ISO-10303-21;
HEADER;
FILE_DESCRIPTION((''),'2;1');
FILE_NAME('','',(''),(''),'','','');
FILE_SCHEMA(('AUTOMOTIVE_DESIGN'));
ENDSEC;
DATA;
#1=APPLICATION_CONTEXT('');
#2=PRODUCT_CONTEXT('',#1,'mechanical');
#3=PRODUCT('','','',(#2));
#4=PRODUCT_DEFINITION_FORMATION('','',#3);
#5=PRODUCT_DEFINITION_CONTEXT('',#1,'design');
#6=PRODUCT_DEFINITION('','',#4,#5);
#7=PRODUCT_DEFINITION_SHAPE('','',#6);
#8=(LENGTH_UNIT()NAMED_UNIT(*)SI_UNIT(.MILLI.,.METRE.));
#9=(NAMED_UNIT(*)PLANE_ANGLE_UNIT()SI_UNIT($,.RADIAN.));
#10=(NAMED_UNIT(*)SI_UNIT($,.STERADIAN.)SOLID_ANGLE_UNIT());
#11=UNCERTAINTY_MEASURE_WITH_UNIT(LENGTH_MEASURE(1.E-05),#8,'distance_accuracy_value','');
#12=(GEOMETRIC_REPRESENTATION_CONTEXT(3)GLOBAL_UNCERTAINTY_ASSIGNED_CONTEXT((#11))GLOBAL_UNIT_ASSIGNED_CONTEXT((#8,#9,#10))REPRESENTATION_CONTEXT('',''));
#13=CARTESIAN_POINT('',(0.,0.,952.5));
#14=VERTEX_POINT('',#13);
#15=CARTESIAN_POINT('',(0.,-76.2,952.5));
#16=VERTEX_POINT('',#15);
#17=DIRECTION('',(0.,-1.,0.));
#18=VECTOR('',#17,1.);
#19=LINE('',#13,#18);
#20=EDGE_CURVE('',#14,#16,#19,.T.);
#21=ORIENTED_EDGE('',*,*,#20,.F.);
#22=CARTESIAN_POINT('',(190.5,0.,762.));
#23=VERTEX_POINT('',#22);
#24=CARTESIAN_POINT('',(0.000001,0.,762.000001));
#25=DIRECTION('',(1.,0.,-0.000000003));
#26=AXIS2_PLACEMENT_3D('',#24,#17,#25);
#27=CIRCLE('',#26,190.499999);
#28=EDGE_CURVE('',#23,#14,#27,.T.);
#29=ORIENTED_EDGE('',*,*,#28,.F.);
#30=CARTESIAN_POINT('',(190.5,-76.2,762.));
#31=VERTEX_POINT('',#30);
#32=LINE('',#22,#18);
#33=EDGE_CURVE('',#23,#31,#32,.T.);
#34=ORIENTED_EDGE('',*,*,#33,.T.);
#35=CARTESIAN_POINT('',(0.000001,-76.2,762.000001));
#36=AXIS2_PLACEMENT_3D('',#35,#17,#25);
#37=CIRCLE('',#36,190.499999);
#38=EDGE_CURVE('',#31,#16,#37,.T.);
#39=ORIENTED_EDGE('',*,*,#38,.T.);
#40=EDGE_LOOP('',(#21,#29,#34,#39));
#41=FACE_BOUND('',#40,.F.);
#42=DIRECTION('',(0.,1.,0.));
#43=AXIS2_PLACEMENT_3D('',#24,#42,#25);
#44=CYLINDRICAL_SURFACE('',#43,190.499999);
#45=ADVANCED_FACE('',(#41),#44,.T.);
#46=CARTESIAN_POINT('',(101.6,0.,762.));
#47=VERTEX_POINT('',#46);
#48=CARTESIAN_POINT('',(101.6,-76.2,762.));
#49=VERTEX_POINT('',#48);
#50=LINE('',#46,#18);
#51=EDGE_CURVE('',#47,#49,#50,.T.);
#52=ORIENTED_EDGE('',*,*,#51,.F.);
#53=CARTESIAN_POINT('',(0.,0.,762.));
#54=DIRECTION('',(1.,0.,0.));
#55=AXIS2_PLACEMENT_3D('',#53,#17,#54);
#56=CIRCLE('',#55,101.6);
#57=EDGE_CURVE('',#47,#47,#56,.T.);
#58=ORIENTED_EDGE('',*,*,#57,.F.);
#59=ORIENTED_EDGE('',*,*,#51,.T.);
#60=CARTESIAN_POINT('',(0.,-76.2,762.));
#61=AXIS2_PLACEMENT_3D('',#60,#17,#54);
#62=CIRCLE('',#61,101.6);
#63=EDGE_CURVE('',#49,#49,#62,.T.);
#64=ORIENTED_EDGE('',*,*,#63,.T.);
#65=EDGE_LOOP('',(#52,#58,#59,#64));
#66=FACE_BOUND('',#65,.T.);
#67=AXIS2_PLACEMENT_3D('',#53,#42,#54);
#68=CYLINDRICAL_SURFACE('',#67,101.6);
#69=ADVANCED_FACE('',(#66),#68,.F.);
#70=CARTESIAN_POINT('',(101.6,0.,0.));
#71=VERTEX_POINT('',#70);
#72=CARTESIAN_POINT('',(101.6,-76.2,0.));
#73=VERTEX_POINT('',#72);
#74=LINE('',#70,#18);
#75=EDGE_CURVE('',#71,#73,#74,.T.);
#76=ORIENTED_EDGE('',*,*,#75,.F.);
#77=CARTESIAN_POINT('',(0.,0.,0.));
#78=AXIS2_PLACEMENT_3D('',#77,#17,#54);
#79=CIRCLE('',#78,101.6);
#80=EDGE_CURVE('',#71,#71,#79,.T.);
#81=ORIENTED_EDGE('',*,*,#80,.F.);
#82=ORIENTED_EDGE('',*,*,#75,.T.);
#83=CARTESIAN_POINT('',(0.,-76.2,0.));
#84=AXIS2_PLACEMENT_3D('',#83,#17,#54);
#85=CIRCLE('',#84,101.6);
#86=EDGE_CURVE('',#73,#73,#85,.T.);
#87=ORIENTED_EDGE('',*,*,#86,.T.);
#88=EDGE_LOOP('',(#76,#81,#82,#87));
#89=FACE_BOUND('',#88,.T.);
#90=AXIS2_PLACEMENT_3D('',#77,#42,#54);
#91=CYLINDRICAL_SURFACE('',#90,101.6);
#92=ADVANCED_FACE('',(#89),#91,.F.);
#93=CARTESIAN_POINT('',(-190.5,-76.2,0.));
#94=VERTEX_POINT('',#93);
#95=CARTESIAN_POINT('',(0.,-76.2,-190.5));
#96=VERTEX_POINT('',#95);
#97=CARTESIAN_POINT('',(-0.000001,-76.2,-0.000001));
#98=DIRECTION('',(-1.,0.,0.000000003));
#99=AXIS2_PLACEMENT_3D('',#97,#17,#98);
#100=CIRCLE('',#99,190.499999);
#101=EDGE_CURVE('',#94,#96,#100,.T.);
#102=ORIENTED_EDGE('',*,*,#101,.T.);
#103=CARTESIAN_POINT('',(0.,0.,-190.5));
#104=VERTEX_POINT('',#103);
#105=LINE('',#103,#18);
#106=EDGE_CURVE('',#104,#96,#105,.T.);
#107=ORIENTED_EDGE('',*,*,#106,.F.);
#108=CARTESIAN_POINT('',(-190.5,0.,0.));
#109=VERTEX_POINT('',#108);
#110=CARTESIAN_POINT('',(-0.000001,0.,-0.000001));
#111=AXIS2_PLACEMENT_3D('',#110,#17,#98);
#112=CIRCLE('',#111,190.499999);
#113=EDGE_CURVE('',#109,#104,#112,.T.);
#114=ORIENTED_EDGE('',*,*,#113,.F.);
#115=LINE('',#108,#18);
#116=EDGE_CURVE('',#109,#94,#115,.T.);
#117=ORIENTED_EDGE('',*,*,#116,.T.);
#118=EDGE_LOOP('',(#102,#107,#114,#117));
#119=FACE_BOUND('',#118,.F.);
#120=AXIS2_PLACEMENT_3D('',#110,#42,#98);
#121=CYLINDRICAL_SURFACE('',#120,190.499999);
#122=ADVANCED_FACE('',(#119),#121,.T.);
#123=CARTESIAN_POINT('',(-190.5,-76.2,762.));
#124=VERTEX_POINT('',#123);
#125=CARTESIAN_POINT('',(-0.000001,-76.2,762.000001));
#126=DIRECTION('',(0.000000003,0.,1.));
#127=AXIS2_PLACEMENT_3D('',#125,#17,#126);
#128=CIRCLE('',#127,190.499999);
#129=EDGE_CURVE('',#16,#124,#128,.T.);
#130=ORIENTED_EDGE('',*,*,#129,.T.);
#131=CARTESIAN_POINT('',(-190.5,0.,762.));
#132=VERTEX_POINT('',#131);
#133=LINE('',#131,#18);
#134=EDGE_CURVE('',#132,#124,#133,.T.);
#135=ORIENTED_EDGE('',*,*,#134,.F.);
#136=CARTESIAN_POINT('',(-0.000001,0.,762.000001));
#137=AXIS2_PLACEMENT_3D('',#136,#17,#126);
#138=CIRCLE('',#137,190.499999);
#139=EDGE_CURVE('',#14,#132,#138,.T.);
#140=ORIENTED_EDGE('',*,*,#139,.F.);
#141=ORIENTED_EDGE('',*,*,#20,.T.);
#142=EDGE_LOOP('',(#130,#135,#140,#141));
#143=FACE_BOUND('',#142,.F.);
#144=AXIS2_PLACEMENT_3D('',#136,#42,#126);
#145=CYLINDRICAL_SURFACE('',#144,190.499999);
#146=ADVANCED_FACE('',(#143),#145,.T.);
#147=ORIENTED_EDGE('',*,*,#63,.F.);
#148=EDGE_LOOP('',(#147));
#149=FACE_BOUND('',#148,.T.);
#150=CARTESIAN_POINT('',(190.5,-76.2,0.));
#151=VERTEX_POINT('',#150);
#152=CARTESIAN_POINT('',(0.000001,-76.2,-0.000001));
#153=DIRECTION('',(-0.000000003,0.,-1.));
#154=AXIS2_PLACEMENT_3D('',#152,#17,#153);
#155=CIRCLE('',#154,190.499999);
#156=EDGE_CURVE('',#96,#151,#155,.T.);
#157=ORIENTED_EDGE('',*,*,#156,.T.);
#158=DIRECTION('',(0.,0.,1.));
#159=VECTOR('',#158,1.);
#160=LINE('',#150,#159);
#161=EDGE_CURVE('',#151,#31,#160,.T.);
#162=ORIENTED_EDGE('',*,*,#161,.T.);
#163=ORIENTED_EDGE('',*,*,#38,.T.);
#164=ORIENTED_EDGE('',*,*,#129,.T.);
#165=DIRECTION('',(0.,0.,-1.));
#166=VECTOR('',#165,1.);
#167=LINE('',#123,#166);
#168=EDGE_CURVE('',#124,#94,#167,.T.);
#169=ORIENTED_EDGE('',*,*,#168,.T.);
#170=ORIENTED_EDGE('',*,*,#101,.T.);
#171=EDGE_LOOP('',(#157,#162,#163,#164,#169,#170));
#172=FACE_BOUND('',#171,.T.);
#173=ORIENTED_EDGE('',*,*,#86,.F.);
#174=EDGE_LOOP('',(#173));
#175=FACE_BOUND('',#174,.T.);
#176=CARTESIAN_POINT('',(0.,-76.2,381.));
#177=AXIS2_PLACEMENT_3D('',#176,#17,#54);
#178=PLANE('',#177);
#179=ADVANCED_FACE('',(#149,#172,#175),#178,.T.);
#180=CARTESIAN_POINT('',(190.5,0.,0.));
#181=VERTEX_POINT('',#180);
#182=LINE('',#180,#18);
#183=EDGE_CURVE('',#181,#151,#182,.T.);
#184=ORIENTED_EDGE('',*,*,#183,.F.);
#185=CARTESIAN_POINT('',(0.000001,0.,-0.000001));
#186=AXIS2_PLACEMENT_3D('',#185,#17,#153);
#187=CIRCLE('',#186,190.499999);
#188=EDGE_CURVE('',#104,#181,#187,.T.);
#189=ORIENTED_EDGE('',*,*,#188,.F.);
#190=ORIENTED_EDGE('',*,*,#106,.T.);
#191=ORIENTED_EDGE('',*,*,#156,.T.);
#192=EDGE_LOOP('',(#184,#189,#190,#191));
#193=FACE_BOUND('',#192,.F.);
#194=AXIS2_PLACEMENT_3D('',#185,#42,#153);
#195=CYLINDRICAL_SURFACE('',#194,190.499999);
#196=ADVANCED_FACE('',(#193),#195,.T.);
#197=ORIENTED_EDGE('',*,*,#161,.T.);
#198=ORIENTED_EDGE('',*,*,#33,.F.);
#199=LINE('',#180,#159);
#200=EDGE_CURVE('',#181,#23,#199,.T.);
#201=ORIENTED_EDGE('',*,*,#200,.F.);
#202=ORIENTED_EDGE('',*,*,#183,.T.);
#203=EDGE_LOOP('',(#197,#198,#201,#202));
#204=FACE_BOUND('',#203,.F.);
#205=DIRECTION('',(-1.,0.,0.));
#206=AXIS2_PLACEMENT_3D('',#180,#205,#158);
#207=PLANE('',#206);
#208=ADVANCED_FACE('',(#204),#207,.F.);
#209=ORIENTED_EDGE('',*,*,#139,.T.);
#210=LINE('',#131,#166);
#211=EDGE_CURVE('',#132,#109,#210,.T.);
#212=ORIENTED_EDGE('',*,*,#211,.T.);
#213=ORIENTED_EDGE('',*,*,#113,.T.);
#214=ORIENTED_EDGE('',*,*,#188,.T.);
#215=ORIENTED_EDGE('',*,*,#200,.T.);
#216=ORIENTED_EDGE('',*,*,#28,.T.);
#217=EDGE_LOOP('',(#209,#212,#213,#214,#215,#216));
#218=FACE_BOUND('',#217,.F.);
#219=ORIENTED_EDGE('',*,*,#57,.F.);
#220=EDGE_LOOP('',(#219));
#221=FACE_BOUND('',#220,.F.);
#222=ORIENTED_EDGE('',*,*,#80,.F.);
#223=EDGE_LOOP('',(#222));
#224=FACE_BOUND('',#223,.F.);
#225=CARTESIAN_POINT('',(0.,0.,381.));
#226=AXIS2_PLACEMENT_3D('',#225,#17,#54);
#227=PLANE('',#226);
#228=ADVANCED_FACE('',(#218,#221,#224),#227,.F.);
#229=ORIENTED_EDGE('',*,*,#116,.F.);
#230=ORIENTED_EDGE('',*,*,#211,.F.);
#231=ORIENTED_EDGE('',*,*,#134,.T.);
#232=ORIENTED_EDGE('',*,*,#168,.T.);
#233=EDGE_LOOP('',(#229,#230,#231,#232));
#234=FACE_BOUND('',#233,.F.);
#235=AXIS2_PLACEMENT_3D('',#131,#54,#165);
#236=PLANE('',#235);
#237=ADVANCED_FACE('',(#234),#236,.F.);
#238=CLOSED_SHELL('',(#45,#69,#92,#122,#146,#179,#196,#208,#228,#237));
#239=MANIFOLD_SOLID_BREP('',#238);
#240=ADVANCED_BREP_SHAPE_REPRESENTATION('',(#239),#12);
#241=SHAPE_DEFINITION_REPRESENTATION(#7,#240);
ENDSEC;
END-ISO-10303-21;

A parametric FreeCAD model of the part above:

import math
import FreeCAD as App
import Part
import Sketcher
Q = App.Units.Quantity

doc = App.newDocument("Part")
body = doc.addObject("PartDesign::Body", "Body")

sketch1 = doc.addObject("Sketcher::SketchObject", "Sketch")
body.addObject(sketch1)
sketch1.AttachmentSupport = (doc.XZ_Plane, [""])
sketch1.MapMode = "FlatFace"
sketch1.addGeometry([
    Part.LineSegment(App.Vector(-190, 762, 0), App.Vector(-190, 0, 0)),
    Part.ArcOfCircle(Part.Circle(App.Vector(0, 0, 0), App.Vector(0, 0, 1), 190), math.radians(180), math.radians(270)),
    Part.ArcOfCircle(Part.Circle(App.Vector(0, 0, 0), App.Vector(0, 0, 1), 190), math.radians(-90), math.radians(0)),
    Part.LineSegment(App.Vector(190, 0, 0), App.Vector(190, 762, 0)),
    Part.ArcOfCircle(Part.Circle(App.Vector(0, 762, 0), App.Vector(0, 0, 1), 190), math.radians(0), math.radians(90)),
    Part.ArcOfCircle(Part.Circle(App.Vector(0, 762, 0), App.Vector(0, 0, 1), 190), math.radians(90), math.radians(180)),
    Part.Circle(App.Vector(0, 0, 0), App.Vector(0, 0, 1), 102),
    Part.Circle(App.Vector(0, 762, 0), App.Vector(0, 0, 1), 102),
], False)
sketch1.addConstraint([
    Sketcher.Constraint("Tangent", 0, 2, 1, 1),
    Sketcher.Constraint("Tangent", 1, 2, 2, 1),
    Sketcher.Constraint("Tangent", 2, 2, 3, 1),
    Sketcher.Constraint("Tangent", 3, 2, 4, 1),
    Sketcher.Constraint("Tangent", 4, 2, 5, 1),
    Sketcher.Constraint("Tangent", 5, 2, 0, 1),
    Sketcher.Constraint("Vertical", 0),
    Sketcher.Constraint("Vertical", 3),
    Sketcher.Constraint("Coincident", 1, 3, -1, 1),
    Sketcher.Constraint("Coincident", 6, 3, -1, 1),
    Sketcher.Constraint("Coincident", 7, 3, 4, 3),
    Sketcher.Constraint("Equal", 1, 2),
    Sketcher.Constraint("Equal", 2, 4),
    Sketcher.Constraint("Equal", 6, 7),
    Sketcher.Constraint("PointOnObject", 1, 2, -2),
    Sketcher.Constraint("PointOnObject", 4, 2, -2),
    Sketcher.Constraint("Diameter", 6, Q("8 in")),
    Sketcher.Constraint("Radius", 1, Q("7.5 in")),
    Sketcher.Constraint("DistanceY", 0, 2, 0, 1, Q("30 in")),
])
pad1 = doc.addObject("PartDesign::Pad", "Pad")
body.addObject(pad1)
pad1.Profile = sketch1
pad1.Length = Q("3 in")

doc.recompute()
